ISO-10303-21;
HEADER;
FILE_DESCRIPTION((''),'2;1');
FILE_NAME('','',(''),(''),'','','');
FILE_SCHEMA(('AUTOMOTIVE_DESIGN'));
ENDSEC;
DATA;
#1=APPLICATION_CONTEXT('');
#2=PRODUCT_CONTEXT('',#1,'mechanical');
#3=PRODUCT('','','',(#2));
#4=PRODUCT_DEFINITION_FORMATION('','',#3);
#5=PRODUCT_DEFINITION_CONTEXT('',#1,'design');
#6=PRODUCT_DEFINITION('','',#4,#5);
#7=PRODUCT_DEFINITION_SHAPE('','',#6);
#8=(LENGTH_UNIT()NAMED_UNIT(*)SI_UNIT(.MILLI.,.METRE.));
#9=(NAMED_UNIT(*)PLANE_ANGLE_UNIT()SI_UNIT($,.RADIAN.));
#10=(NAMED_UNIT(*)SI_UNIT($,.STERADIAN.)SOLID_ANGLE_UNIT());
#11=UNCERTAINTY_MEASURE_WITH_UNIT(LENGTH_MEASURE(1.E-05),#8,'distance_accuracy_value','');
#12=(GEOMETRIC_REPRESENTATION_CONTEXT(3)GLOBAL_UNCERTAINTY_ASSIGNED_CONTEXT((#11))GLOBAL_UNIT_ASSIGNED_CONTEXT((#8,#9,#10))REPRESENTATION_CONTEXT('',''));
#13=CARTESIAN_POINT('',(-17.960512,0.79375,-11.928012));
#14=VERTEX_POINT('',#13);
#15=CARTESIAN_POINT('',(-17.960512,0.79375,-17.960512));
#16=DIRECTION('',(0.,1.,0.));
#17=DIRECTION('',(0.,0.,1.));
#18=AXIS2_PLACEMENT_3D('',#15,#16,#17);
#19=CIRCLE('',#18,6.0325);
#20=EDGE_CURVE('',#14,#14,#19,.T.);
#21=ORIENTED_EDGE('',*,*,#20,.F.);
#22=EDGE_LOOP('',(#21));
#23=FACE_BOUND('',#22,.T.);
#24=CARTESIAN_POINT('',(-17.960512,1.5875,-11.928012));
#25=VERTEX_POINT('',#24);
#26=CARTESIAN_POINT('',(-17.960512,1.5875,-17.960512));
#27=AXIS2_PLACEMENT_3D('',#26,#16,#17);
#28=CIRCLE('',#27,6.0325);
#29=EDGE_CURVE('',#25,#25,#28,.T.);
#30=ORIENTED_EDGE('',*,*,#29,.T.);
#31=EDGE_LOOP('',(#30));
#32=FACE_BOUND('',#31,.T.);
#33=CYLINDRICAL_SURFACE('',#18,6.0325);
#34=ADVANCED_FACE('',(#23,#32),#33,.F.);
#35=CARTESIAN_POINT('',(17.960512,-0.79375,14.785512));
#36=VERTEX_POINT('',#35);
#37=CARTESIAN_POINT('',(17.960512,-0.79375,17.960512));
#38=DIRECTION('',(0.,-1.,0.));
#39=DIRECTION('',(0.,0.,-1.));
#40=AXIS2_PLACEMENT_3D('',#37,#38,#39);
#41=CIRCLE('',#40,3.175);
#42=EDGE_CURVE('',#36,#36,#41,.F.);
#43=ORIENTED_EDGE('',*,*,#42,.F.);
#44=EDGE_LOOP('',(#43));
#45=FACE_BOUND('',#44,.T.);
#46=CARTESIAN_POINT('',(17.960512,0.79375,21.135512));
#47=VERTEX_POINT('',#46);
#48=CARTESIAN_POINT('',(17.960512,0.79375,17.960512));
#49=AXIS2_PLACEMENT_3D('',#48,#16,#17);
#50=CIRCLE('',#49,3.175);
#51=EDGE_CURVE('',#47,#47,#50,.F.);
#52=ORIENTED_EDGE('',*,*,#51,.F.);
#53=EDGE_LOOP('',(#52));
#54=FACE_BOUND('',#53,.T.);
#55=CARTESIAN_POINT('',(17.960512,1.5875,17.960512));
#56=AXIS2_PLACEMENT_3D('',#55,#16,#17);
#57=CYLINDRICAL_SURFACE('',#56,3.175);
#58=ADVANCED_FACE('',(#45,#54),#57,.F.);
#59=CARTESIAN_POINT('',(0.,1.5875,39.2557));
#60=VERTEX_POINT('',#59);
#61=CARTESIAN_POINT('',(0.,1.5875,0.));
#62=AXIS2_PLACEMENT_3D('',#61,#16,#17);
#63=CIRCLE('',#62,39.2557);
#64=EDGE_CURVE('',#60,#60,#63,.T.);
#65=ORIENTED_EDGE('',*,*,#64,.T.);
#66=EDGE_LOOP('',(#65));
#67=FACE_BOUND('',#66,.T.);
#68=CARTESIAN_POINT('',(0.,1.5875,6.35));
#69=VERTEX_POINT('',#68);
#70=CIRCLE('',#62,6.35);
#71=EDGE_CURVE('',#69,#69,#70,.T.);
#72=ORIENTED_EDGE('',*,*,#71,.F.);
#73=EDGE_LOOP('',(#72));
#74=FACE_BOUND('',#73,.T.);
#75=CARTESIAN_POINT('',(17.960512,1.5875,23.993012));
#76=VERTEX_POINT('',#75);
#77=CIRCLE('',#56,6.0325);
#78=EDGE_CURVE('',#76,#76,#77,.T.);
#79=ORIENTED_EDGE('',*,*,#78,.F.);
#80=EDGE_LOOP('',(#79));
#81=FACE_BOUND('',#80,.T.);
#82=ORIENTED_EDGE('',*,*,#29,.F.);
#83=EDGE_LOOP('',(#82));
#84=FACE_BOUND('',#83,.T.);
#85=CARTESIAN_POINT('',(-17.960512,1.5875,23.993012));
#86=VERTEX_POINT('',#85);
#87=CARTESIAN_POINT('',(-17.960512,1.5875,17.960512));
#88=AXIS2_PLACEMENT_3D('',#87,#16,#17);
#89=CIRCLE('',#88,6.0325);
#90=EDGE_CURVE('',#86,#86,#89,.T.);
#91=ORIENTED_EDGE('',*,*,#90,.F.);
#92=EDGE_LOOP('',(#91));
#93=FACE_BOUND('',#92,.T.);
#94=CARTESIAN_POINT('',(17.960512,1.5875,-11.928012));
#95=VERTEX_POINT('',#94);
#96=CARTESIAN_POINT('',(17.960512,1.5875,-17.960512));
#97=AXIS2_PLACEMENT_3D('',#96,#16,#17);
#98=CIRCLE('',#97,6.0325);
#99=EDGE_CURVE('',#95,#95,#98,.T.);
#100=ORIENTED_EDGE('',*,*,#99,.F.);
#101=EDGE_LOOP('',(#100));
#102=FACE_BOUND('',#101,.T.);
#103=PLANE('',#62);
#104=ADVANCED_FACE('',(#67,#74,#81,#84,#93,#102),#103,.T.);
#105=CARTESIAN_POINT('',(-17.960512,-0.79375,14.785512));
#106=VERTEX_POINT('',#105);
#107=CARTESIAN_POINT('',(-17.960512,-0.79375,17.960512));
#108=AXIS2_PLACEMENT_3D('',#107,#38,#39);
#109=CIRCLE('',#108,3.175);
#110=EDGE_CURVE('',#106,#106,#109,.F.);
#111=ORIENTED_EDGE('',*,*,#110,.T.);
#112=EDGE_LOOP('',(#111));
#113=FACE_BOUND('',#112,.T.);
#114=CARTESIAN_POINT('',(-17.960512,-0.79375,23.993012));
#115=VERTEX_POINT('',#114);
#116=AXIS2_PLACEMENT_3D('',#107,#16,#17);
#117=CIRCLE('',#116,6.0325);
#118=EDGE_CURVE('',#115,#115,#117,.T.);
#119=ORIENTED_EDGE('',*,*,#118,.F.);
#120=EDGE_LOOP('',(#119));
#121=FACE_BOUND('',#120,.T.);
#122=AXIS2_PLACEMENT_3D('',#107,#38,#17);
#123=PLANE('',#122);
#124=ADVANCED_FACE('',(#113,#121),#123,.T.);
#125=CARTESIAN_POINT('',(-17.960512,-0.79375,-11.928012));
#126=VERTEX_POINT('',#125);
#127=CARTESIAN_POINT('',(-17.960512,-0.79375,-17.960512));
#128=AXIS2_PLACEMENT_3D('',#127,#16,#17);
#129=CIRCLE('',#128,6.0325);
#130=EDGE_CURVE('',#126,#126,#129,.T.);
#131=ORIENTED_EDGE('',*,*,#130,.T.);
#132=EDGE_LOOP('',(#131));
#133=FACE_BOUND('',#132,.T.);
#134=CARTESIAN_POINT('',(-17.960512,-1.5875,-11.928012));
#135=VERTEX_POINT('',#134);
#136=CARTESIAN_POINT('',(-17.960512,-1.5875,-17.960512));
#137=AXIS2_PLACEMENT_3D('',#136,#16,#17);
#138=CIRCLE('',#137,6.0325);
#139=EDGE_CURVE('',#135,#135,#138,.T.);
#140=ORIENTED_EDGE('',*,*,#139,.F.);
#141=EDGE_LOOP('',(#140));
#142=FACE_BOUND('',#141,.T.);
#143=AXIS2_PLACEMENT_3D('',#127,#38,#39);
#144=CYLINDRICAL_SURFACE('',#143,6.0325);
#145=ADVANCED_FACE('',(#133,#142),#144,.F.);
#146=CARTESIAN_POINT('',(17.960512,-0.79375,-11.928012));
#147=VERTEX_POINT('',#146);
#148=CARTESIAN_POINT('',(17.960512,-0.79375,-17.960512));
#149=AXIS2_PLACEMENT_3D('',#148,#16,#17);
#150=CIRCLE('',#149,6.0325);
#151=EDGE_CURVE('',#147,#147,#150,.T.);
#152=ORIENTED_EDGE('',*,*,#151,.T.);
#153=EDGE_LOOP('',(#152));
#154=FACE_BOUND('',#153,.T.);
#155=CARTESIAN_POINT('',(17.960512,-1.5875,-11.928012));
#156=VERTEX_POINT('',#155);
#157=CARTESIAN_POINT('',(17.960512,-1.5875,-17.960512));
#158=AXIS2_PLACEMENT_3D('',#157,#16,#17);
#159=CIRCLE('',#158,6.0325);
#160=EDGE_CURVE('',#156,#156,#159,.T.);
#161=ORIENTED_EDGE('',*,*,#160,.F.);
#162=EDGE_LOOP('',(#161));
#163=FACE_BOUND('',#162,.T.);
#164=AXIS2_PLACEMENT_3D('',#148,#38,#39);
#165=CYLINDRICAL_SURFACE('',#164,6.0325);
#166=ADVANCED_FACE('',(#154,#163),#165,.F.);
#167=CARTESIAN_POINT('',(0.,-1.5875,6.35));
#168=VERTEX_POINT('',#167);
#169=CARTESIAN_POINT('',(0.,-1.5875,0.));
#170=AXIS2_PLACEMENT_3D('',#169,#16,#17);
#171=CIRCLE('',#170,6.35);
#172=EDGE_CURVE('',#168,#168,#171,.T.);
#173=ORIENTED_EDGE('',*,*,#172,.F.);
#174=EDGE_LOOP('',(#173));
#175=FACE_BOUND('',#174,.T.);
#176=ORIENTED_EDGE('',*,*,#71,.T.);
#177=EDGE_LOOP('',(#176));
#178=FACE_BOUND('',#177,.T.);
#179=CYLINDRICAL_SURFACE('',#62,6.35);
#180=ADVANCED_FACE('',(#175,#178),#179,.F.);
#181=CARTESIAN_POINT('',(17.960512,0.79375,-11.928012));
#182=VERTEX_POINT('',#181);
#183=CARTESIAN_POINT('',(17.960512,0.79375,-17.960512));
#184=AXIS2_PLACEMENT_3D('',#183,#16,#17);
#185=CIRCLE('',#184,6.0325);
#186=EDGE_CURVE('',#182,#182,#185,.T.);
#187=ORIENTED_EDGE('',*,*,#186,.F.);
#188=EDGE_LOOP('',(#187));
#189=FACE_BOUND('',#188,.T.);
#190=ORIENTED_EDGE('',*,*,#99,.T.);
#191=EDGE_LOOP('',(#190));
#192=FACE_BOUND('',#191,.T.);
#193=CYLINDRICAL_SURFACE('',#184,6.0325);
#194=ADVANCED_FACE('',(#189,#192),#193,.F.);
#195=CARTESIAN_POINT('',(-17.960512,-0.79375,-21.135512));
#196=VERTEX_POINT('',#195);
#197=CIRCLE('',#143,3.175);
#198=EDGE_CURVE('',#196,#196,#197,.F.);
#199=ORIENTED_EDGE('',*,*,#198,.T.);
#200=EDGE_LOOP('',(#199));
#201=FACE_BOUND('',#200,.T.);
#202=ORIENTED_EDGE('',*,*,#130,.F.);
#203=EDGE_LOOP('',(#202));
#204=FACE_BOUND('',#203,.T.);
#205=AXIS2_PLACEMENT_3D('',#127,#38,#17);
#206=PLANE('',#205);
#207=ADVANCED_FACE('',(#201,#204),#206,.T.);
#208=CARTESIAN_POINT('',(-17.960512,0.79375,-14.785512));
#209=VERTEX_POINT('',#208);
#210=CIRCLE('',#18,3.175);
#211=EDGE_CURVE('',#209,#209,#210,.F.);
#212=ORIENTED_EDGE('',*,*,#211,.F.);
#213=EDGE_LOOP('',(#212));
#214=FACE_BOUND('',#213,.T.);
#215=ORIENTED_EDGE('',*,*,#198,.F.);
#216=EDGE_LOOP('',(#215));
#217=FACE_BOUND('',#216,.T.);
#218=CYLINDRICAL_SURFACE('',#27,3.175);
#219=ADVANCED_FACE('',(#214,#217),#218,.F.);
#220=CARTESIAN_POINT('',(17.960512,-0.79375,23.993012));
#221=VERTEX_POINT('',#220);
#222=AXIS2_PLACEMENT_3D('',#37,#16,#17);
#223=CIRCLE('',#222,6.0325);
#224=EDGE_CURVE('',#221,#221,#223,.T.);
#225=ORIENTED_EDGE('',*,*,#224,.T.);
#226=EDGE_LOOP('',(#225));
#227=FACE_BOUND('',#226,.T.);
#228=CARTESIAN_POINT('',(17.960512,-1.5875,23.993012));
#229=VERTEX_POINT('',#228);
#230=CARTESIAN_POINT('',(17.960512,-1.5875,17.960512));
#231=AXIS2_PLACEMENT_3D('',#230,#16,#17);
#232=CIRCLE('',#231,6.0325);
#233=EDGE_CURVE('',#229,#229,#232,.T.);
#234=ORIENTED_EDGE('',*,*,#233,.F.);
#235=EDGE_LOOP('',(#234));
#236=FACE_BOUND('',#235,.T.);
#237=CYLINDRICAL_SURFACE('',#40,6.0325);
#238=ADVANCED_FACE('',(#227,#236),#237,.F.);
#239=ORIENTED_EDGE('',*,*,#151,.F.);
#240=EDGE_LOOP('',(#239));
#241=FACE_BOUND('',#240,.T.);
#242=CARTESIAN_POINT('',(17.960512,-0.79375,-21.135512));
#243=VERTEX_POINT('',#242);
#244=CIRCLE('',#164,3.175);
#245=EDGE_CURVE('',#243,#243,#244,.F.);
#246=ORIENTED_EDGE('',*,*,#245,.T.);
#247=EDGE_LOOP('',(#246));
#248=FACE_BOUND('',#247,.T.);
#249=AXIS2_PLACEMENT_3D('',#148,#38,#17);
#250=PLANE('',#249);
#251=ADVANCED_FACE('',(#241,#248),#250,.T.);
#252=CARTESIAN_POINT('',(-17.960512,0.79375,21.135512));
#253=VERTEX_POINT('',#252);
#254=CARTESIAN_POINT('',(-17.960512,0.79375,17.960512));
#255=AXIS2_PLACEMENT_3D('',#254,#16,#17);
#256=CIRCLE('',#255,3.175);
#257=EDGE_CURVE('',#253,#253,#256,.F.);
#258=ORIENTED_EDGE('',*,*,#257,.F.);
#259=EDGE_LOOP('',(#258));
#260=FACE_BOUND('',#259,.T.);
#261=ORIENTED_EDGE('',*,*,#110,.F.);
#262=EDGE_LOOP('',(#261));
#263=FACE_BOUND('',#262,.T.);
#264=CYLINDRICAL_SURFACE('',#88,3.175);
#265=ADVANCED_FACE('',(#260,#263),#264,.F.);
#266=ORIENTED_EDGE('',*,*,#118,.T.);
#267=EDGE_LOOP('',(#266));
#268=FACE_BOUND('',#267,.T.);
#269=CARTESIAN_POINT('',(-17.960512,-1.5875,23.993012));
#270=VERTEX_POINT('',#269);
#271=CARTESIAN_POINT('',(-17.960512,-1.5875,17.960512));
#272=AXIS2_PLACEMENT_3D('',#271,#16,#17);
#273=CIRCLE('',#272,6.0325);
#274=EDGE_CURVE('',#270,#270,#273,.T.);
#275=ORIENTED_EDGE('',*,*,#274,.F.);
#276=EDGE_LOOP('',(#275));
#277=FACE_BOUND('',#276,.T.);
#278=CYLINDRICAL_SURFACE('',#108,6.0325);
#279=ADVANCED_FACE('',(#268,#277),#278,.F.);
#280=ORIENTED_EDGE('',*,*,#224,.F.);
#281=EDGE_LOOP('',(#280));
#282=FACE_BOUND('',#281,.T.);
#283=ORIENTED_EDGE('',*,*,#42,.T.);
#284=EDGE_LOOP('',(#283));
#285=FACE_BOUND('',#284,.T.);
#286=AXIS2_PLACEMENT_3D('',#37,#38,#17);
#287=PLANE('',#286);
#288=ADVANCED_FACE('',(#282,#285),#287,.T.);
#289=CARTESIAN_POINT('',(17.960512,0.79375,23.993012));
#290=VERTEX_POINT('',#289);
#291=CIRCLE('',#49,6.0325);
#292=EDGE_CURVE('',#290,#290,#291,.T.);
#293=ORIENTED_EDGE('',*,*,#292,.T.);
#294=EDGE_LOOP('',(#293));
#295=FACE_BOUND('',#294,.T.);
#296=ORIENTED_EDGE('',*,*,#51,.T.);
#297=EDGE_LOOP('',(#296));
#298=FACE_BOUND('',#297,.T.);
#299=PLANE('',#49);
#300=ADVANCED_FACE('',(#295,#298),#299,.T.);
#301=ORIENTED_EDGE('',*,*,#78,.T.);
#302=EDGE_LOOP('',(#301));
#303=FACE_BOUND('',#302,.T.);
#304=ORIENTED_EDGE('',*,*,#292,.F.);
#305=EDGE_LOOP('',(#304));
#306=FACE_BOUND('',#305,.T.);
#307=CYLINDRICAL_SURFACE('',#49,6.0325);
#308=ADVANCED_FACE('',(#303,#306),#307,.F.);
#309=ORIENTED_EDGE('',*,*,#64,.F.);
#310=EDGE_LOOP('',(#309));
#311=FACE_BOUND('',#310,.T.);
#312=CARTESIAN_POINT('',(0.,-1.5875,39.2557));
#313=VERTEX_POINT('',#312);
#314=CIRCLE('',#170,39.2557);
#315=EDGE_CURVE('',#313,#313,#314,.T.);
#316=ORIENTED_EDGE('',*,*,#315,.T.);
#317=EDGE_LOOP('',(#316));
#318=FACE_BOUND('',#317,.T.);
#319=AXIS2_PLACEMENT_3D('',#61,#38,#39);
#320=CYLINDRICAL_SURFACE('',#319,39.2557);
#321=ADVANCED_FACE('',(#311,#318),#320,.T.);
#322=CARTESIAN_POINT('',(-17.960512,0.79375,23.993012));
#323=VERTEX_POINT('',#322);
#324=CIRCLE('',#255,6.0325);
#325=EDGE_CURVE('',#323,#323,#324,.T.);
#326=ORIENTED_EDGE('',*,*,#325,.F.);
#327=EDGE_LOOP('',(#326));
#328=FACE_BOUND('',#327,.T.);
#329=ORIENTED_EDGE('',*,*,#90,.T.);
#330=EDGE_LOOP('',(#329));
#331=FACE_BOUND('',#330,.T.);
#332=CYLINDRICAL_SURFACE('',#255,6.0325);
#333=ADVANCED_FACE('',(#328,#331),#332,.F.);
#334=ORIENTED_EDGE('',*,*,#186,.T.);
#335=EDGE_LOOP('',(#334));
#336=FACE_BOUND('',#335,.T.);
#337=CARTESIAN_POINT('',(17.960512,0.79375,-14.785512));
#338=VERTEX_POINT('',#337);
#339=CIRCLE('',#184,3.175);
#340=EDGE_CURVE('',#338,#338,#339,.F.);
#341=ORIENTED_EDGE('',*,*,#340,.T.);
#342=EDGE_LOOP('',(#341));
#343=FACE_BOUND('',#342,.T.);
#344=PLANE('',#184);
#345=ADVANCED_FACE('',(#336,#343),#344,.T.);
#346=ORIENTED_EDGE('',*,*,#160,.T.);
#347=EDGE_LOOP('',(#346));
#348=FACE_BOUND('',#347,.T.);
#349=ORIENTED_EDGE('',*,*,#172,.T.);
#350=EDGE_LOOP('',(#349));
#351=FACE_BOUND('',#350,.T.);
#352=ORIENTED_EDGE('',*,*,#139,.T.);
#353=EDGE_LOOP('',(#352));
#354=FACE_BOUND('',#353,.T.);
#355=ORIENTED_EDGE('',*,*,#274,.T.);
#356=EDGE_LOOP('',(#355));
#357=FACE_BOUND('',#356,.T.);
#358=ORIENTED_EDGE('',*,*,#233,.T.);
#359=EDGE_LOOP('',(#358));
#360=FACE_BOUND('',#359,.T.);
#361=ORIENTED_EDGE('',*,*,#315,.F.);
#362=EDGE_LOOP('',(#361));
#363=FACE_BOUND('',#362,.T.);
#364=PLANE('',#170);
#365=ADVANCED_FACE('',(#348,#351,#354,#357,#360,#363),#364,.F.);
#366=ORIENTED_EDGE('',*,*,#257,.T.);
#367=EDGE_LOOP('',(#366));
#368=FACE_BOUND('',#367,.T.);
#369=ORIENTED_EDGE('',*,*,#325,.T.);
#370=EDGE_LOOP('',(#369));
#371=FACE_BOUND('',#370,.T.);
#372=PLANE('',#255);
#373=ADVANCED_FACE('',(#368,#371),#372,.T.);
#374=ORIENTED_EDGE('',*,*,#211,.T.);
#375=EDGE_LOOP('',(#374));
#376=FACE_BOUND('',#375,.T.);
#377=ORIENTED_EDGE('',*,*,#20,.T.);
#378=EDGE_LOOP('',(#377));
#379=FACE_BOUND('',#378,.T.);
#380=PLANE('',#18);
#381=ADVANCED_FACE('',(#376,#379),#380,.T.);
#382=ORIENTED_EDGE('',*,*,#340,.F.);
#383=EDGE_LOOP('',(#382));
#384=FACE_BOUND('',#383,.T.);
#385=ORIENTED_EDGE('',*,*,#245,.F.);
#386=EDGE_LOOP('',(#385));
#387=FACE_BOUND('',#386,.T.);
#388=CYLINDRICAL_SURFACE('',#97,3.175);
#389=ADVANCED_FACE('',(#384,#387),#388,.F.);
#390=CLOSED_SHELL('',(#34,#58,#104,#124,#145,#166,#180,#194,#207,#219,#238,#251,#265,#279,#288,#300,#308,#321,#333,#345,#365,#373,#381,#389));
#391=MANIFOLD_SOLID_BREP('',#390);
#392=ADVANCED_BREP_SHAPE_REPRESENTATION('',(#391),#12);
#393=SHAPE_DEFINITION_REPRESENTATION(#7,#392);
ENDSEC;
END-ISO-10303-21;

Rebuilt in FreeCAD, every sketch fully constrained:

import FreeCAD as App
import Part
import Sketcher

V = App.Vector
Q = App.Units.Quantity

doc = App.newDocument("Part")
body = doc.addObject("PartDesign::Body", "Body")

sketch1 = body.newObject("Sketcher::SketchObject", "Sketch")
sketch1.AttachmentSupport = (doc.getObject("XZ_Plane"), [""])
sketch1.MapMode = "FlatFace"
sketch1.addGeometry(Part.Circle(V(0, 0, 0), V(0, 0, 1), 39.2557), False)
sketch1.addConstraint(Sketcher.Constraint("Coincident", 0, 3, -1, 1))
sketch1.addConstraint(Sketcher.Constraint("Diameter", 0, Q("3.091 in")))
pad1 = body.newObject("PartDesign::Pad", "Pad")
pad1.Profile = sketch1
pad1.Length = Q("0.125 in")
pad1.Midplane = True

sketch2 = body.newObject("Sketcher::SketchObject", "Sketch001")
sketch2.AttachmentSupport = (doc.getObject("XZ_Plane"), [""])
sketch2.MapMode = "FlatFace"
sketch2.AttachmentOffset = App.Placement(V(0, 0, -0.0625 * 25.4), App.Rotation())
sketch2.addGeometry(Part.Circle(V(-17.960512, 17.960512, 0), V(0, 0, 1), 3.175), False)
sketch2.addGeometry(Part.Circle(V(-17.960512, -17.960512, 0), V(0, 0, 1), 3.175), False)
sketch2.addGeometry(Part.Circle(V(17.960512, -17.960512, 0), V(0, 0, 1), 3.175), False)
sketch2.addGeometry(Part.Circle(V(17.960512, 17.960512, 0), V(0, 0, 1), 3.175), False)
sketch2.addConstraint(Sketcher.Constraint("Equal", 0, 1))
sketch2.addConstraint(Sketcher.Constraint("Equal", 1, 2))
sketch2.addConstraint(Sketcher.Constraint("Equal", 2, 3))
sketch2.addConstraint(Sketcher.Constraint("Symmetric", 0, 3, 2, 3, -1, 1))
sketch2.addConstraint(Sketcher.Constraint("Symmetric", 1, 3, 3, 3, -1, 1))
sketch2.addConstraint(Sketcher.Constraint("Symmetric", 1, 3, 2, 3, -2))
sketch2.addConstraint(Sketcher.Constraint("Diameter", 0, Q("0.25 in")))
sketch2.addConstraint(Sketcher.Constraint("DistanceX", 0, 3, -1, 1, 17.960512))
sketch2.addConstraint(Sketcher.Constraint("DistanceY", -1, 1, 0, 3, 17.960512))
doc.recompute()
hole = body.newObject("PartDesign::Hole", "Hole")
hole.Profile = sketch2
hole.ThreadType = "None"
hole.Diameter = Q("0.25 in")
hole.DepthType = "ThroughAll"
hole.Reversed = True

sketch3 = body.newObject("Sketcher::SketchObject", "Sketch002")
sketch3.AttachmentSupport = (doc.getObject("XZ_Plane"), [""])
sketch3.MapMode = "FlatFace"
sketch3.AttachmentOffset = App.Placement(V(0, 0, -0.0625 * 25.4), App.Rotation())
sketch3.addGeometry(Part.Circle(V(0, 0, 0), V(0, 0, 1), 6.35), False)
sketch3.addConstraint(Sketcher.Constraint("Coincident", 0, 3, -1, 1))
sketch3.addConstraint(Sketcher.Constraint("Diameter", 0, Q("0.5 in")))
doc.recompute()
hole2 = body.newObject("PartDesign::Hole", "Hole001")
hole2.Profile = sketch3
hole2.ThreadType = "None"
hole2.Diameter = Q("0.5 in")
hole2.DepthType = "ThroughAll"
hole2.Reversed = True

sketch4 = body.newObject("Sketcher::SketchObject", "Sketch003")
sketch4.AttachmentSupport = (doc.getObject("XZ_Plane"), [""])
sketch4.MapMode = "FlatFace"
sketch4.AttachmentOffset = App.Placement(V(0, 0, -0.0625 * 25.4), App.Rotation())
sketch4.addGeometry(Part.Circle(V(-17.960512, -17.960512, 0), V(0, 0, 1), 6.0325), False)
sketch4.addGeometry(Part.Circle(V(17.960512, -17.960512, 0), V(0, 0, 1), 6.0325), False)
sketch4.addGeometry(Part.Circle(V(17.960512, 17.960512, 0), V(0, 0, 1), 6.0325), False)
sketch4.addGeometry(Part.Circle(V(-17.960512, 17.960512, 0), V(0, 0, 1), 6.0325), False)
sketch4.addConstraint(Sketcher.Constraint("Equal", 0, 1))
sketch4.addConstraint(Sketcher.Constraint("Equal", 1, 2))
sketch4.addConstraint(Sketcher.Constraint("Equal", 2, 3))
sketch4.addConstraint(Sketcher.Constraint("Symmetric", 0, 3, 2, 3, -1, 1))
sketch4.addConstraint(Sketcher.Constraint("Symmetric", 1, 3, 3, 3, -1, 1))
sketch4.addConstraint(Sketcher.Constraint("Symmetric", 0, 3, 1, 3, -2))
sketch4.addConstraint(Sketcher.Constraint("Diameter", 0, Q("0.475 in")))
sketch4.addConstraint(Sketcher.Constraint("DistanceX", 0, 3, -1, 1, 17.960512))
sketch4.addConstraint(Sketcher.Constraint("DistanceY", 0, 3, -1, 1, 17.960512))
pocket1 = body.newObject("PartDesign::Pocket", "Pocket")
pocket1.Profile = sketch4
pocket1.Length = Q("0.03125 in")
pocket1.Reversed = True
doc.recompute()

mirrored = body.newObject("PartDesign::Mirrored", "Mirrored")
mirrored.Originals = [pocket1]
mirrored.MirrorPlane = (doc.getObject("XZ_Plane"), [""])
body.Tip = mirrored

doc.recompute()
